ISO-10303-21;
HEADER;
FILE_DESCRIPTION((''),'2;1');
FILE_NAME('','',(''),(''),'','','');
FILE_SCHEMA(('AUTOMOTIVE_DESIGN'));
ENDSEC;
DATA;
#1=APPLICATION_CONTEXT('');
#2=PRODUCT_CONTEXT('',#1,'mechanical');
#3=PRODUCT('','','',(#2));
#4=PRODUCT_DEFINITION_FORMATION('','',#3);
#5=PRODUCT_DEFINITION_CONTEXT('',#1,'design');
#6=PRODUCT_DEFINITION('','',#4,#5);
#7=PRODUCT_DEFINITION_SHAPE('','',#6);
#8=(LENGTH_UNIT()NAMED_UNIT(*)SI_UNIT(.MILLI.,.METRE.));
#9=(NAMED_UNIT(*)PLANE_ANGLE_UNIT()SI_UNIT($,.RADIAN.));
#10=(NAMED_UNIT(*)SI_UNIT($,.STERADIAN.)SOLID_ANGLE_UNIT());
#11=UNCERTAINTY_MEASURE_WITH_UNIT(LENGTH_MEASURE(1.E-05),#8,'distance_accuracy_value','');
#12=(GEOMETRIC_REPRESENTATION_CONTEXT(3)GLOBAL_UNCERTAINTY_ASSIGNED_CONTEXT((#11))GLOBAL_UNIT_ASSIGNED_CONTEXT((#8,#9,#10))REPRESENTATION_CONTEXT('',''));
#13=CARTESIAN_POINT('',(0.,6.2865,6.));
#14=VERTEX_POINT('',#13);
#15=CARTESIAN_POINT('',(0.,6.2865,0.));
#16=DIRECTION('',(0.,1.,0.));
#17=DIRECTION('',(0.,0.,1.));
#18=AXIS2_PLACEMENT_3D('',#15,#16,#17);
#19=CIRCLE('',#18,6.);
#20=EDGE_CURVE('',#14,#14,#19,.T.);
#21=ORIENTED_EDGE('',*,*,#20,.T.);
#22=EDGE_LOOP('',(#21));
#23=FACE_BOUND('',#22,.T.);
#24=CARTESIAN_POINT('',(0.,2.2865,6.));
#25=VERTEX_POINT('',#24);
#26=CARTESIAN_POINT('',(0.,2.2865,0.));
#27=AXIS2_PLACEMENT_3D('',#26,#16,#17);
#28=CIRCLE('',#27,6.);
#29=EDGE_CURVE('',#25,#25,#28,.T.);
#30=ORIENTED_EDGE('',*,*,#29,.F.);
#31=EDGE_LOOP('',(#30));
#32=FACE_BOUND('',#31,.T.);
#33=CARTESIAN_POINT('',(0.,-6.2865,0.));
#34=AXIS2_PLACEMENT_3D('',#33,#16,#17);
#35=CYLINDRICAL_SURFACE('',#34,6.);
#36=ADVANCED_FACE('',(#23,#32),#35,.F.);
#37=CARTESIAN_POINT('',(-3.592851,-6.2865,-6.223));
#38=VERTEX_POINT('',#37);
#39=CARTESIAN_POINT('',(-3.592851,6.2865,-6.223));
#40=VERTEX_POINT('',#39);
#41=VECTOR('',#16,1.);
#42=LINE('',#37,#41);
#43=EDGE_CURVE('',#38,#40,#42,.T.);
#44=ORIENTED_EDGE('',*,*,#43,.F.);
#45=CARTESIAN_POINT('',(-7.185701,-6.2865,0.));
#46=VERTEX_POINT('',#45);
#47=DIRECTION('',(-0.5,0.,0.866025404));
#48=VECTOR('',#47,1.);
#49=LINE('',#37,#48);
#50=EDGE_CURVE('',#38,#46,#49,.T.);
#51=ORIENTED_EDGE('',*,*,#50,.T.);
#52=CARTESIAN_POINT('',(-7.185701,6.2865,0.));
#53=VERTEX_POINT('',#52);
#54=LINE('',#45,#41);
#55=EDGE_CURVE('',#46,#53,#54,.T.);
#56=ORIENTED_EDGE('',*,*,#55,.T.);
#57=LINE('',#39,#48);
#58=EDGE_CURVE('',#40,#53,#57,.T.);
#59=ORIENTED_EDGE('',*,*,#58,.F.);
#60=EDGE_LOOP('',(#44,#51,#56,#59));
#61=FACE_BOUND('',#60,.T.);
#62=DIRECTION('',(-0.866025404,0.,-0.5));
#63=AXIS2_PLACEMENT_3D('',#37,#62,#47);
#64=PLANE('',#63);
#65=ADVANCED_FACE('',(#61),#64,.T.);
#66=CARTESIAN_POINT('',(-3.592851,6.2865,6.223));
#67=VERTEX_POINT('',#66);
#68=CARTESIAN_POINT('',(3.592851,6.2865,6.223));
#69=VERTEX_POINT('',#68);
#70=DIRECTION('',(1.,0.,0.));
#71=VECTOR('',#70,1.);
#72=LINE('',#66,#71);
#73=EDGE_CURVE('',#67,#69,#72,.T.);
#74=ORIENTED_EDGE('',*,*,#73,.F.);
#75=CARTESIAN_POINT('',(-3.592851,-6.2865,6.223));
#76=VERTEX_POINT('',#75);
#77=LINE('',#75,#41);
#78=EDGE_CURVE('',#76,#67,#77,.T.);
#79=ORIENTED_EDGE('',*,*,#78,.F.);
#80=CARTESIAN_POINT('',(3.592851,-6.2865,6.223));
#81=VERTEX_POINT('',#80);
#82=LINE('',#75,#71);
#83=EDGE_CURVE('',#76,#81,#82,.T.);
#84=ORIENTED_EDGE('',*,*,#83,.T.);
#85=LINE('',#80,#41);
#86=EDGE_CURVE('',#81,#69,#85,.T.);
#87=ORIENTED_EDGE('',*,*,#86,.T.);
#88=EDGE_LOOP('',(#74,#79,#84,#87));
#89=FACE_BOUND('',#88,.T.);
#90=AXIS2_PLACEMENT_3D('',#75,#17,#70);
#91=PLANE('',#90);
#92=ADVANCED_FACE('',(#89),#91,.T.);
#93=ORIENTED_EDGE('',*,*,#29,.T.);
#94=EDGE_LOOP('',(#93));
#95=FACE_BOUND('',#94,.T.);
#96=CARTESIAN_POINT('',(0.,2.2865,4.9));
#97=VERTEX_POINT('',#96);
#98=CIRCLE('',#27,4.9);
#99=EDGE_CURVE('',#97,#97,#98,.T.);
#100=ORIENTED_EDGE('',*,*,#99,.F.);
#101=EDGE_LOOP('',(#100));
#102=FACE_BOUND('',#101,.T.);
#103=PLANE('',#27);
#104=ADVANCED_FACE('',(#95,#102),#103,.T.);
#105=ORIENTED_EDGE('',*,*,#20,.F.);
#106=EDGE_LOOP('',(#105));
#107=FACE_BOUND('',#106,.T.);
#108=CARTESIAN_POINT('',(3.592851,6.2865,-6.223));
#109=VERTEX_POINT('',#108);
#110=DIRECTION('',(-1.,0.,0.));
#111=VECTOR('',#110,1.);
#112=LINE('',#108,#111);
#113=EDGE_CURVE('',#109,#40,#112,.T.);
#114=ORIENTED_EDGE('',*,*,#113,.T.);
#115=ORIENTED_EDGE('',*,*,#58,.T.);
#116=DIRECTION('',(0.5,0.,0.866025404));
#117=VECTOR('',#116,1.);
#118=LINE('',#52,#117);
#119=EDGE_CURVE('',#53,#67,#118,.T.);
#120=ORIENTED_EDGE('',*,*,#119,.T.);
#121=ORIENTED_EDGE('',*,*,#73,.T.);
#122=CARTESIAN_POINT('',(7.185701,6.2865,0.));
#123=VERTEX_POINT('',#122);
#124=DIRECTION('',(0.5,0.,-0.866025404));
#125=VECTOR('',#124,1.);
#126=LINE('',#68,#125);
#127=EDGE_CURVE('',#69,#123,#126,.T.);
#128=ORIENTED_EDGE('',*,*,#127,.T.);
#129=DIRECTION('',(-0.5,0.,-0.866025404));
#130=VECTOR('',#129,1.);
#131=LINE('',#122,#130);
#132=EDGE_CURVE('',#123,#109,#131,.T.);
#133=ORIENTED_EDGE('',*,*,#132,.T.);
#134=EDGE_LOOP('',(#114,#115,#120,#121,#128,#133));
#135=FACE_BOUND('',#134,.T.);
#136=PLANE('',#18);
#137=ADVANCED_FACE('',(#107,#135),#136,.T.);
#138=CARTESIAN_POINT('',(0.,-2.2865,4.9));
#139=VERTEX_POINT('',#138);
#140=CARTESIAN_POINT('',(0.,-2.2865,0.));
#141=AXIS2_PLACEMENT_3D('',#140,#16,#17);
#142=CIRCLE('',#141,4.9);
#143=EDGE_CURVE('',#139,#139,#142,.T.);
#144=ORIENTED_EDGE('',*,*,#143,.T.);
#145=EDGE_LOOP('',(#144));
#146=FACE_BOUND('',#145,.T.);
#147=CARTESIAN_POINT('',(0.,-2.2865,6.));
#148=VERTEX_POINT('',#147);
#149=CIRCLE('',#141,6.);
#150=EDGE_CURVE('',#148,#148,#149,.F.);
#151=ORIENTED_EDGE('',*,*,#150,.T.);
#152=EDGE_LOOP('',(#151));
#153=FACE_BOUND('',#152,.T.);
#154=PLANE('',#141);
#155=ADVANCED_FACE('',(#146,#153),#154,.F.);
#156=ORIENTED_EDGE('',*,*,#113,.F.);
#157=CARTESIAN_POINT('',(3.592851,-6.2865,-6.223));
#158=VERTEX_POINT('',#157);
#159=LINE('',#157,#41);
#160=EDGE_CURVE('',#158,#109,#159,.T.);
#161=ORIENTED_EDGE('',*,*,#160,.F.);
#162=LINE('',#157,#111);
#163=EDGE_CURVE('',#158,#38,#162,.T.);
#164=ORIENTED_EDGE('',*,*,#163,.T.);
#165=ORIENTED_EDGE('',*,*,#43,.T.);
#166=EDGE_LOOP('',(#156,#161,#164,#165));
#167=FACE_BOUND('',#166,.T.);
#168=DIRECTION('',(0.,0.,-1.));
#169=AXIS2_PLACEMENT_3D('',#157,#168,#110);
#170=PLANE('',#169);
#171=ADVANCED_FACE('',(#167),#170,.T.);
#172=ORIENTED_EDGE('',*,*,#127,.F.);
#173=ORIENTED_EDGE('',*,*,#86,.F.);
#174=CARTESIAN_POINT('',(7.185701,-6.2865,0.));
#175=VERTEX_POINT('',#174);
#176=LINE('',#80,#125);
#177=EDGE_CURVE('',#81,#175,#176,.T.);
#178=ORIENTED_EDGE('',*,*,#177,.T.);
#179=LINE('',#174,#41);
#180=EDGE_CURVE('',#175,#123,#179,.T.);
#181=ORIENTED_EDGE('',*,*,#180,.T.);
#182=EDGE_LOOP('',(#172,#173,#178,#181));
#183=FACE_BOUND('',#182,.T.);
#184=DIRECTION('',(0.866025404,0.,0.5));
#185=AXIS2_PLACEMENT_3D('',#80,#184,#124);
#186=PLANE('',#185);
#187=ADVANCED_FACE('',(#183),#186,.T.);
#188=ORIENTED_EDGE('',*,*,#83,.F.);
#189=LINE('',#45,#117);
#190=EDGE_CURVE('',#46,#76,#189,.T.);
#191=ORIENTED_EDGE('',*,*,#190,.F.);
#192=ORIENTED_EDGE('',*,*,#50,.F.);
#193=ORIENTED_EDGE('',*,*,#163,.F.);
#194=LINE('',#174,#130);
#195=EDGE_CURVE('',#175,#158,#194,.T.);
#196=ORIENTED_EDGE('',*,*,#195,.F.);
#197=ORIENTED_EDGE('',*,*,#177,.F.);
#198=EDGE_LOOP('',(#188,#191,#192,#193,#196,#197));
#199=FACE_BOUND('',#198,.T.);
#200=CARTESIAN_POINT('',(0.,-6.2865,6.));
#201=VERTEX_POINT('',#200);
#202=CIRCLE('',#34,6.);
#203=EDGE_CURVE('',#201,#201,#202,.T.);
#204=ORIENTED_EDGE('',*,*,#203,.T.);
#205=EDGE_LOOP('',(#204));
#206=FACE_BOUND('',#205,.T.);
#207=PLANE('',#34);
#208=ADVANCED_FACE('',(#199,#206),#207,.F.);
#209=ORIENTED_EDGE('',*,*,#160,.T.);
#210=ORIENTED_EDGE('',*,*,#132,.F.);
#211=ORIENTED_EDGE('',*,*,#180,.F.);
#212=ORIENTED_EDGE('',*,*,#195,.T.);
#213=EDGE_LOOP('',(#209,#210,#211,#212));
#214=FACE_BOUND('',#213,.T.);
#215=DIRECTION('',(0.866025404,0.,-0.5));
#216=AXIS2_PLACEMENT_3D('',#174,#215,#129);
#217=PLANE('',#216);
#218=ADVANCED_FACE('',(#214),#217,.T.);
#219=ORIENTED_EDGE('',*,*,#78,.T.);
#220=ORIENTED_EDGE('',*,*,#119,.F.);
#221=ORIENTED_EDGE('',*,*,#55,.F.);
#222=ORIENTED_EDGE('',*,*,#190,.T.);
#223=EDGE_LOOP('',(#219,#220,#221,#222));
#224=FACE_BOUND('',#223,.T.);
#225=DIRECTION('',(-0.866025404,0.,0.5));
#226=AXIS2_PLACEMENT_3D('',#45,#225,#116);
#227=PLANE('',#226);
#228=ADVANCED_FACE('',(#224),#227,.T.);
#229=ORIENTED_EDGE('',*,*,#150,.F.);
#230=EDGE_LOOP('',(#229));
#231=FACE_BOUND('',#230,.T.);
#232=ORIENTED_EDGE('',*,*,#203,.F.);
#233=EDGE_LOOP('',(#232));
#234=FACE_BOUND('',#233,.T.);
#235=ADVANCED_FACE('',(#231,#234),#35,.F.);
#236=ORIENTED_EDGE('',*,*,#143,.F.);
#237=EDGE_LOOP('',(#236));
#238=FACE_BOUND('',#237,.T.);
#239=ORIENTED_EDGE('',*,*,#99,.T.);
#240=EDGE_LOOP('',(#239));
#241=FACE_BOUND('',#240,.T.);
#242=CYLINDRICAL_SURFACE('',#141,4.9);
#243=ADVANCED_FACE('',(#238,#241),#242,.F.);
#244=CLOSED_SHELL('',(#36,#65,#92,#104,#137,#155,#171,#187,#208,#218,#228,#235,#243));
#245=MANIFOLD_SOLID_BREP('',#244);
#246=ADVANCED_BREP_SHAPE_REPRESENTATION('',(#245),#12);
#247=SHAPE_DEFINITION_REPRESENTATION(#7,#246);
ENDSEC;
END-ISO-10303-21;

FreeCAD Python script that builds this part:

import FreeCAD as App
import Part
import Sketcher

V = App.Vector
Q = App.Units.Quantity

doc = App.newDocument("Part")
body = doc.addObject("PartDesign::Body", "Body")

# Sketch on XZ plane
sketch1 = body.newObject("Sketcher::SketchObject", "Sketch")
sketch1.AttachmentSupport = (doc.getObject("XZ_Plane"), [""])
sketch1.MapMode = "FlatFace"
sketch1.addGeometry(Part.LineSegment(V(-4, -6, 0), V(-7, 0, 0)), False)
sketch1.addGeometry(Part.LineSegment(V(-7, 0, 0), V(-4, 6, 0)), False)
sketch1.addGeometry(Part.LineSegment(V(-4, 6, 0), V(4, 6, 0)), False)
sketch1.addGeometry(Part.LineSegment(V(4, 6, 0), V(7, 0, 0)), False)
sketch1.addGeometry(Part.LineSegment(V(7, 0, 0), V(4, -6, 0)), False)
sketch1.addGeometry(Part.LineSegment(V(4, -6, 0), V(-4, -6, 0)), False)
sketch1.addGeometry(Part.Circle(V(0, 0, 0), V(0, 0, 1), 6), False)
sketch1.addConstraint(Sketcher.Constraint("Coincident", 0, 2, 1, 1))
sketch1.addConstraint(Sketcher.Constraint("Coincident", 1, 2, 2, 1))
sketch1.addConstraint(Sketcher.Constraint("Coincident", 2, 2, 3, 1))
sketch1.addConstraint(Sketcher.Constraint("Coincident", 3, 2, 4, 1))
sketch1.addConstraint(Sketcher.Constraint("Coincident", 4, 2, 5, 1))
sketch1.addConstraint(Sketcher.Constraint("Coincident", 5, 2, 0, 1))
sketch1.addConstraint(Sketcher.Constraint("Horizontal", 2))
sketch1.addConstraint(Sketcher.Constraint("Horizontal", 5))
sketch1.addConstraint(Sketcher.Constraint("Coincident", 6, 3, -1, 1))
sketch1.addConstraint(Sketcher.Constraint("Symmetric", 0, 2, 3, 2, -1, 1))
sketch1.addConstraint(Sketcher.Constraint("Symmetric", 1, 2, 4, 2, -1, 1))
sketch1.addConstraint(Sketcher.Constraint("PointOnObject", 0, 2, -1))
sketch1.addConstraint(Sketcher.Constraint("Parallel", 0, 3))
sketch1.addConstraint(Sketcher.Constraint("Vertical", 2, 2, 4, 2))
sketch1.addConstraint(Sketcher.Constraint("Diameter", 6, Q("12 mm")))
sketch1.addConstraint(Sketcher.Constraint("Angle", 0, Q("120 deg")))
sketch1.addConstraint(Sketcher.Constraint("DistanceX", 2, 1, 2, 2, Q("7.185701 mm")))
sketch1.addConstraint(Sketcher.Constraint("DistanceY", -1, 1, 1, 2, Q("6.223 mm")))
pad1 = body.newObject("PartDesign::Pad", "Pad")
pad1.Profile = sketch1
pad1.Type = "TwoLengths"
pad1.Length = 6.2865
pad1.Length2 = 6.2865
pad1.Reversed = True

# Sketch on XZ plane
sketch2 = body.newObject("Sketcher::SketchObject", "Sketch001")
sketch2.AttachmentSupport = (doc.getObject("XZ_Plane"), [""])
sketch2.MapMode = "FlatFace"
sketch2.addGeometry(Part.Circle(V(0, 0, 0), V(0, 0, 1), 6), False)
sketch2.addGeometry(Part.Circle(V(0, 0, 0), V(0, 0, 1), 4.9), False)
sketch2.addConstraint(Sketcher.Constraint("Coincident", 0, 3, -1, 1))
sketch2.addConstraint(Sketcher.Constraint("Coincident", 1, 3, -1, 1))
sketch2.addConstraint(Sketcher.Constraint("Diameter", 0, Q("12 mm")))
sketch2.addConstraint(Sketcher.Constraint("Diameter", 1, Q("9.8 mm")))
pad2 = body.newObject("PartDesign::Pad", "Pad001")
pad2.Profile = sketch2
pad2.Type = "TwoLengths"
pad2.Length = 2.2865
pad2.Length2 = 2.2865
pad2.Reversed = True

doc.recompute()
